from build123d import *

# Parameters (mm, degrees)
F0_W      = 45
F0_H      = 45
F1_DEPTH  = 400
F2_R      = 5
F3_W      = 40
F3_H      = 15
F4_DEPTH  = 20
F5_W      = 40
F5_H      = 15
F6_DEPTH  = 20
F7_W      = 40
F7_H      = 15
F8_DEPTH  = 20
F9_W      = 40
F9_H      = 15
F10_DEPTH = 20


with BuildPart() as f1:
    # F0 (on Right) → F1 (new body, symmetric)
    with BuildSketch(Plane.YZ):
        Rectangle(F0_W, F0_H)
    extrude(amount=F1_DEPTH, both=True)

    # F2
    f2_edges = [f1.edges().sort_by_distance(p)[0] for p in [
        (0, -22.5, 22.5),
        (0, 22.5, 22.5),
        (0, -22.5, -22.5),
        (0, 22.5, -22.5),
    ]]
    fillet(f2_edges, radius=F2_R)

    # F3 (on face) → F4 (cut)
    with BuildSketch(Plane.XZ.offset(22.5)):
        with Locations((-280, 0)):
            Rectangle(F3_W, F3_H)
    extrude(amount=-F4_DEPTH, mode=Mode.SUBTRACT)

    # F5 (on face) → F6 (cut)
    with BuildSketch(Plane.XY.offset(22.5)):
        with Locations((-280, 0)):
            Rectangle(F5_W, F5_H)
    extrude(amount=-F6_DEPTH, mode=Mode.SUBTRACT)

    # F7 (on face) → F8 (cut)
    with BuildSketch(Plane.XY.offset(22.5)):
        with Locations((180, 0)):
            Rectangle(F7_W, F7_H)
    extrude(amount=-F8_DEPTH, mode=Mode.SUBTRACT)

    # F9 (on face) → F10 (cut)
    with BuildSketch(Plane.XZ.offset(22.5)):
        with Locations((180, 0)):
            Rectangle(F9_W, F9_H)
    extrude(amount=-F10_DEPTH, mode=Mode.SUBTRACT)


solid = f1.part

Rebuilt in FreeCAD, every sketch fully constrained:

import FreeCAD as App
import Part
import Sketcher
from FreeCAD import Vector
Q = App.Units.Quantity


def edges_at(feature, points):
    """Names of the edges that pass closest to the given points."""
    edges = feature.Shape.Edges
    near = lambda p: min(range(len(edges)), key=lambda i: edges[i].distToShape(Part.Vertex(*p))[0])
    return sorted({f"Edge{near(p) + 1}" for p in points})

doc = App.newDocument("Part")
body = doc.addObject("PartDesign::Body", "Body")

# Sketch on YZ plane
sketch1 = body.newObject("Sketcher::SketchObject", "Sketch")
sketch1.AttachmentSupport = (doc.getObject("YZ_Plane"), [""])
sketch1.MapMode = "FlatFace"
sketch1.addGeometry([
    Part.LineSegment(Vector(-22.5, 22.5, 0), Vector(-22.5, -22.5, 0)),
    Part.LineSegment(Vector(-22.5, -22.5, 0), Vector(22.5, -22.5, 0)),
    Part.LineSegment(Vector(22.5, -22.5, 0), Vector(22.5, 22.5, 0)),
    Part.LineSegment(Vector(22.5, 22.5, 0), Vector(-22.5, 22.5, 0)),
], False)
sketch1.addConstraint([
    Sketcher.Constraint("Coincident", 0, 2, 1, 1),
    Sketcher.Constraint("Coincident", 1, 2, 2, 1),
    Sketcher.Constraint("Coincident", 2, 2, 3, 1),
    Sketcher.Constraint("Coincident", 3, 2, 0, 1),
    Sketcher.Constraint("Vertical", 0),
    Sketcher.Constraint("Horizontal", 1),
    Sketcher.Constraint("Vertical", 2),
    Sketcher.Constraint("Horizontal", 3),
    Sketcher.Constraint("Symmetric", 0, 2, 2, 2, -1, 1),
    Sketcher.Constraint("Equal", 3, 0),
    Sketcher.Constraint("DistanceX", 1, 1, 1, 2, Q("45 mm")),
])
pad1 = body.newObject("PartDesign::Pad", "Pad")
pad1.Profile = sketch1
pad1.Length = 800
pad1.Midplane = True
doc.recompute()

fillet = body.newObject("PartDesign::Fillet", "Fillet")
fillet.Base = (pad1, edges_at(pad1, [
    (0, -22.5, 22.5),
    (0, 22.5, 22.5),
    (0, -22.5, -22.5),
    (0, 22.5, -22.5),
]))
fillet.Radius = 5

# Sketch on XZ plane
sketch2 = body.newObject("Sketcher::SketchObject", "Sketch001")
sketch2.AttachmentSupport = (doc.getObject("XZ_Plane"), [""])
sketch2.MapMode = "FlatFace"
sketch2.AttachmentOffset = App.Placement(Vector(0, 0, 22.5), App.Rotation())
sketch2.addGeometry([
    Part.LineSegment(Vector(-300, 7.5, 0), Vector(-300, -7.5, 0)),
    Part.LineSegment(Vector(-300, -7.5, 0), Vector(-260, -7.5, 0)),
    Part.LineSegment(Vector(-260, -7.5, 0), Vector(-260, 7.5, 0)),
    Part.LineSegment(Vector(-260, 7.5, 0), Vector(-300, 7.5, 0)),
], False)
sketch2.addConstraint([
    Sketcher.Constraint("Coincident", 0, 2, 1, 1),
    Sketcher.Constraint("Coincident", 1, 2, 2, 1),
    Sketcher.Constraint("Coincident", 2, 2, 3, 1),
    Sketcher.Constraint("Coincident", 3, 2, 0, 1),
    Sketcher.Constraint("Vertical", 0),
    Sketcher.Constraint("Horizontal", 1),
    Sketcher.Constraint("Vertical", 2),
    Sketcher.Constraint("Horizontal", 3),
    Sketcher.Constraint("DistanceX", 1, 1, 1, 2, Q("40 mm")),
    Sketcher.Constraint("DistanceY", 0, 2, 0, 1, Q("15 mm")),
    Sketcher.Constraint("DistanceX", 0, 2, -1, 1, Q("300 mm")),
    Sketcher.Constraint("DistanceY", 0, 2, -1, 1, Q("7.5 mm")),
])
pocket1 = body.newObject("PartDesign::Pocket", "Pocket")
pocket1.Profile = sketch2
pocket1.Length = 20

# Sketch on XY plane
sketch3 = body.newObject("Sketcher::SketchObject", "Sketch002")
sketch3.AttachmentSupport = (doc.getObject("XY_Plane"), [""])
sketch3.MapMode = "FlatFace"
sketch3.AttachmentOffset = App.Placement(Vector(0, 0, 22.5), App.Rotation())
sketch3.addGeometry([
    Part.LineSegment(Vector(-300, 7.5, 0), Vector(-300, -7.5, 0)),
    Part.LineSegment(Vector(-300, -7.5, 0), Vector(-260, -7.5, 0)),
    Part.LineSegment(Vector(-260, -7.5, 0), Vector(-260, 7.5, 0)),
    Part.LineSegment(Vector(-260, 7.5, 0), Vector(-300, 7.5, 0)),
], False)
sketch3.addConstraint([
    Sketcher.Constraint("Coincident", 0, 2, 1, 1),
    Sketcher.Constraint("Coincident", 1, 2, 2, 1),
    Sketcher.Constraint("Coincident", 2, 2, 3, 1),
    Sketcher.Constraint("Coincident", 3, 2, 0, 1),
    Sketcher.Constraint("Vertical", 0),
    Sketcher.Constraint("Horizontal", 1),
    Sketcher.Constraint("Vertical", 2),
    Sketcher.Constraint("Horizontal", 3),
    Sketcher.Constraint("DistanceX", 1, 1, 1, 2, Q("40 mm")),
    Sketcher.Constraint("DistanceY", 0, 2, 0, 1, Q("15 mm")),
    Sketcher.Constraint("DistanceX", 0, 2, -1, 1, Q("300 mm")),
    Sketcher.Constraint("DistanceY", 0, 2, -1, 1, Q("7.5 mm")),
])
pocket2 = body.newObject("PartDesign::Pocket", "Pocket001")
pocket2.Profile = sketch3
pocket2.Length = 20

# Sketch on XY plane
sketch4 = body.newObject("Sketcher::SketchObject", "Sketch003")
sketch4.AttachmentSupport = (doc.getObject("XY_Plane"), [""])
sketch4.MapMode = "FlatFace"
sketch4.AttachmentOffset = App.Placement(Vector(0, 0, 22.5), App.Rotation())
sketch4.addGeometry([
    Part.LineSegment(Vector(160, 7.5, 0), Vector(160, -7.5, 0)),
    Part.LineSegment(Vector(160, -7.5, 0), Vector(200, -7.5, 0)),
    Part.LineSegment(Vector(200, -7.5, 0), Vector(200, 7.5, 0)),
    Part.LineSegment(Vector(200, 7.5, 0), Vector(160, 7.5, 0)),
], False)
sketch4.addConstraint([
    Sketcher.Constraint("Coincident", 0, 2, 1, 1),
    Sketcher.Constraint("Coincident", 1, 2, 2, 1),
    Sketcher.Constraint("Coincident", 2, 2, 3, 1),
    Sketcher.Constraint("Coincident", 3, 2, 0, 1),
    Sketcher.Constraint("Vertical", 0),
    Sketcher.Constraint("Horizontal", 1),
    Sketcher.Constraint("Vertical", 2),
    Sketcher.Constraint("Horizontal", 3),
    Sketcher.Constraint("DistanceX", 1, 1, 1, 2, Q("40 mm")),
    Sketcher.Constraint("DistanceY", 0, 2, 0, 1, Q("15 mm")),
    Sketcher.Constraint("DistanceX", -1, 1, 0, 2, Q("160 mm")),
    Sketcher.Constraint("DistanceY", 0, 2, -1, 1, Q("7.5 mm")),
])
pocket3 = body.newObject("PartDesign::Pocket", "Pocket002")
pocket3.Profile = sketch4
pocket3.Length = 20

# Sketch on XZ plane
sketch5 = body.newObject("Sketcher::SketchObject", "Sketch004")
sketch5.AttachmentSupport = (doc.getObject("XZ_Plane"), [""])
sketch5.MapMode = "FlatFace"
sketch5.AttachmentOffset = App.Placement(Vector(0, 0, 22.5), App.Rotation())
sketch5.addGeometry([
    Part.LineSegment(Vector(160, 7.5, 0), Vector(160, -7.5, 0)),
    Part.LineSegment(Vector(160, -7.5, 0), Vector(200, -7.5, 0)),
    Part.LineSegment(Vector(200, -7.5, 0), Vector(200, 7.5, 0)),
    Part.LineSegment(Vector(200, 7.5, 0), Vector(160, 7.5, 0)),
], False)
sketch5.addConstraint([
    Sketcher.Constraint("Coincident", 0, 2, 1, 1),
    Sketcher.Constraint("Coincident", 1, 2, 2, 1),
    Sketcher.Constraint("Coincident", 2, 2, 3, 1),
    Sketcher.Constraint("Coincident", 3, 2, 0, 1),
    Sketcher.Constraint("Vertical", 0),
    Sketcher.Constraint("Horizontal", 1),
    Sketcher.Constraint("Vertical", 2),
    Sketcher.Constraint("Horizontal", 3),
    Sketcher.Constraint("DistanceX", 1, 1, 1, 2, Q("40 mm")),
    Sketcher.Constraint("DistanceY", 0, 2, 0, 1, Q("15 mm")),
    Sketcher.Constraint("DistanceX", -1, 1, 0, 2, Q("160 mm")),
    Sketcher.Constraint("DistanceY", 0, 2, -1, 1, Q("7.5 mm")),
])
pocket4 = body.newObject("PartDesign::Pocket", "Pocket003")
pocket4.Profile = sketch5
pocket4.Length = 20

doc.recompute()
